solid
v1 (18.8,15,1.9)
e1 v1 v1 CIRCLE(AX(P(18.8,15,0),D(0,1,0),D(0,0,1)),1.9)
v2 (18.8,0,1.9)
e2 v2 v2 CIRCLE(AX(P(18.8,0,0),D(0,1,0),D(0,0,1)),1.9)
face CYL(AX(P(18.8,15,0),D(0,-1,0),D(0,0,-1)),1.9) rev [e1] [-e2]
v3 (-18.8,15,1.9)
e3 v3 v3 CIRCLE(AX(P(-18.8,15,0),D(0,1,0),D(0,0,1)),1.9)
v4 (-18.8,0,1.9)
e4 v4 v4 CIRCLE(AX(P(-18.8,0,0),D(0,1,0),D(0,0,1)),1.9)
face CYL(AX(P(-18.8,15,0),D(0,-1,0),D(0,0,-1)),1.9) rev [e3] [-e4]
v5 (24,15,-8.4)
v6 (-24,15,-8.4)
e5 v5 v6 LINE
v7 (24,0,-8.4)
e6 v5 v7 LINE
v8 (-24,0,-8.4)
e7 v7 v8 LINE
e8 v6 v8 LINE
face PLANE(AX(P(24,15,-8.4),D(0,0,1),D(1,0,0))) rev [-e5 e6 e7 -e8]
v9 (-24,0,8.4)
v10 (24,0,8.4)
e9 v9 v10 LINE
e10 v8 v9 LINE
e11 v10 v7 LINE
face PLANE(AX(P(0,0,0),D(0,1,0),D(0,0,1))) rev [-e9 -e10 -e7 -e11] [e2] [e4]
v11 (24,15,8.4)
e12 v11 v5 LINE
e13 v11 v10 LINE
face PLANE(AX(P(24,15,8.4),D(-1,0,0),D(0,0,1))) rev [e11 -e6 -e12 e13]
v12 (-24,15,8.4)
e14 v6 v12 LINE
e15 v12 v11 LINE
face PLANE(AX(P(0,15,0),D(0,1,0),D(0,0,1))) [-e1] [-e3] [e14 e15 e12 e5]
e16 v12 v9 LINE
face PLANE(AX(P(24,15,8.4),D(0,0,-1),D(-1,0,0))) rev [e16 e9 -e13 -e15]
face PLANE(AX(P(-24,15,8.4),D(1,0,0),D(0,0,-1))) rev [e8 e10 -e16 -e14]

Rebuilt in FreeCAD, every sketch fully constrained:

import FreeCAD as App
import Part
import Sketcher

V = App.Vector
Q = App.Units.Quantity


def add_polygon(sketch, points):
    """Adds a closed chain of lines whose ends are joined by coincident constraints."""
    first, n = sketch.GeometryCount, len(points)
    for a, b in zip(points, points[1:] + points[:1]):
        sketch.addGeometry(Part.LineSegment(App.Vector(*a, 0), App.Vector(*b, 0)), False)
    for i in range(n):
        sketch.addConstraint(Sketcher.Constraint("Coincident", first + i, 2, first + (i + 1) % n, 1))

doc = App.newDocument("Part")
body = doc.addObject("PartDesign::Body", "Body")

# Sketch on XZ plane
sketch1 = body.newObject("Sketcher::SketchObject", "Sketch")
sketch1.AttachmentSupport = (doc.getObject("XZ_Plane"), [""])
sketch1.MapMode = "FlatFace"
add_polygon(sketch1, [(-24, -8.4), (-24, 8.4), (24, 8.4), (24, -8.4)])  # lines 0-3
sketch1.addGeometry(Part.Circle(V(-18.8, 0, 0), V(0, 0, 1), 1.9), False)  # 4
sketch1.addGeometry(Part.Circle(V(18.8, 0, 0), V(0, 0, 1), 1.9), False)  # 5
sketch1.addConstraint([
    Sketcher.Constraint("Vertical", 0),
    Sketcher.Constraint("Horizontal", 1),
    Sketcher.Constraint("Vertical", 2),
    Sketcher.Constraint("Horizontal", 3),
    Sketcher.Constraint("Equal", 4, 5),
    Sketcher.Constraint("Symmetric", 4, 3, 5, 3, -1, 1),
    Sketcher.Constraint("Symmetric", 0, 2, 2, 2, -1, 1),
    Sketcher.Constraint("PointOnObject", 4, 3, -1),
    Sketcher.Constraint("Diameter", 4, Q("3.8 mm")),
    Sketcher.Constraint("DistanceX", 1, 1, 1, 2, Q("48 mm")),
    Sketcher.Constraint("DistanceY", 0, 1, 0, 2, Q("16.8 mm")),
    Sketcher.Constraint("DistanceX", 4, 3, -1, 1, Q("18.8 mm")),
])
pad1 = body.newObject("PartDesign::Pad", "Pad")
pad1.Profile = sketch1
pad1.Length = 15
pad1.Reversed = True

doc.recompute()
